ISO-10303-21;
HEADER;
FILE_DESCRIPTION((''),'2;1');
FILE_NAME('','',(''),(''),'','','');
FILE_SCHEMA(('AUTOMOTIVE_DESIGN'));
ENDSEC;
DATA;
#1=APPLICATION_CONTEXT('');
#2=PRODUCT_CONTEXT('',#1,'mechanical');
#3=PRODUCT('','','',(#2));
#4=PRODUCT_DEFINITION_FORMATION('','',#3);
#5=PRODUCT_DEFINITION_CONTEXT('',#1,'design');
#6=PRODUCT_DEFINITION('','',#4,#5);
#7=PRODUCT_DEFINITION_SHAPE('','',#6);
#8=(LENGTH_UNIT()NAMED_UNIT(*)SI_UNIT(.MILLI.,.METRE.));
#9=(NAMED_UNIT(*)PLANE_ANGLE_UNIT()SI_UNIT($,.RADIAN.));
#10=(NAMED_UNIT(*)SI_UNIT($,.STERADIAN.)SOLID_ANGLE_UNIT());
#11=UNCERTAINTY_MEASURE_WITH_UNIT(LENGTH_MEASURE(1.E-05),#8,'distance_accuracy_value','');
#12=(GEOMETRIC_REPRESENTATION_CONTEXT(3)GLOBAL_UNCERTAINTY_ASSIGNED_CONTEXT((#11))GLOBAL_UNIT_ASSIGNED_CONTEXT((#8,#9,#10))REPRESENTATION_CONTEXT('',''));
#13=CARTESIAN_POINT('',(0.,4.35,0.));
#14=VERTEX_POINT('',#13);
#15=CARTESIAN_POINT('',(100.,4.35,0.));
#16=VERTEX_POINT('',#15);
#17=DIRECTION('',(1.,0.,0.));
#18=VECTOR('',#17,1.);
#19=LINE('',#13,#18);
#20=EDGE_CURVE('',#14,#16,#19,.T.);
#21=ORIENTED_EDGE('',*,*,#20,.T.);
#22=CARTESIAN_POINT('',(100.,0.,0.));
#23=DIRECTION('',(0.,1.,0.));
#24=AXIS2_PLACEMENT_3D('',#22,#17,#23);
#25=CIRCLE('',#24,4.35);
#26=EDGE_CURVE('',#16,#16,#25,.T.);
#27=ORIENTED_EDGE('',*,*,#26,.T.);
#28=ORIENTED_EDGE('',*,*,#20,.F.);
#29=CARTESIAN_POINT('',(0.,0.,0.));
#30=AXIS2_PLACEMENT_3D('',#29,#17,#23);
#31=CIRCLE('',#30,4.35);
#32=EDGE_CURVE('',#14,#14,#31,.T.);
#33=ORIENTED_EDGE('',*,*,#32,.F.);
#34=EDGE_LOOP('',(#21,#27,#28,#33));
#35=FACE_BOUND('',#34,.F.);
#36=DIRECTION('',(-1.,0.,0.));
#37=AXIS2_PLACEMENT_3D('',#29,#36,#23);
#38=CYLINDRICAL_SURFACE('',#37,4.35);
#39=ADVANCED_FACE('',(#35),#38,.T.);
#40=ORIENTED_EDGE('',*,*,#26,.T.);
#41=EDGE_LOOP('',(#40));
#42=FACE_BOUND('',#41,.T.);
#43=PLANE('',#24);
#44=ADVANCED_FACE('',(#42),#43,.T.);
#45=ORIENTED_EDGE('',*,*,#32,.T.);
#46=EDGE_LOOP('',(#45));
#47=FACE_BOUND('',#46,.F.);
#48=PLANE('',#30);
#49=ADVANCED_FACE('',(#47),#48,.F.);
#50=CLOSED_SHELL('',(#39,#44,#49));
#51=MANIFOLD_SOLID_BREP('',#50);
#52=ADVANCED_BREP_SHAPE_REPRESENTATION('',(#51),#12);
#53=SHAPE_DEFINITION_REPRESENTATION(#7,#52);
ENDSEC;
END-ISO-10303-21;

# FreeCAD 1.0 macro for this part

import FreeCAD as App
import Part
import Sketcher

V = App.Vector
Q = App.Units.Quantity

doc = App.newDocument("Part")
params = doc.addObject("Spreadsheet::Sheet", "Params")
for row, (alias, value) in enumerate([
    ("sketch1_diameter", "8.7 mm"),
    ("pad1_length", "100 mm"),
], start=1):
    params.set(f"A{row}", alias)
    params.set(f"B{row}", "=" + value)
    params.setAlias(f"B{row}", alias)

body = doc.addObject("PartDesign::Body", "Body")

# Sketch on YZ plane
sketch1 = doc.addObject("Sketcher::SketchObject", "Sketch")
body.addObject(sketch1)
sketch1.AttachmentSupport = (doc.YZ_Plane, [""])
sketch1.MapMode = "FlatFace"
sketch1.addGeometry(Part.Circle(V(0, 0, 0), V(0, 0, 1), 4.3), False)
sketch1.addConstraint([
    Sketcher.Constraint("Coincident", 0, 3, -1, 1),
    Sketcher.Constraint("Diameter", 0, Q("8.7 mm")),
])
sketch1.setExpression("Constraints[1]", "Params.sketch1_diameter")
pad1 = doc.addObject("PartDesign::Pad", "Pad")
body.addObject(pad1)
pad1.Profile = sketch1
pad1.setExpression("Length", "Params.pad1_length")

doc.recompute()
